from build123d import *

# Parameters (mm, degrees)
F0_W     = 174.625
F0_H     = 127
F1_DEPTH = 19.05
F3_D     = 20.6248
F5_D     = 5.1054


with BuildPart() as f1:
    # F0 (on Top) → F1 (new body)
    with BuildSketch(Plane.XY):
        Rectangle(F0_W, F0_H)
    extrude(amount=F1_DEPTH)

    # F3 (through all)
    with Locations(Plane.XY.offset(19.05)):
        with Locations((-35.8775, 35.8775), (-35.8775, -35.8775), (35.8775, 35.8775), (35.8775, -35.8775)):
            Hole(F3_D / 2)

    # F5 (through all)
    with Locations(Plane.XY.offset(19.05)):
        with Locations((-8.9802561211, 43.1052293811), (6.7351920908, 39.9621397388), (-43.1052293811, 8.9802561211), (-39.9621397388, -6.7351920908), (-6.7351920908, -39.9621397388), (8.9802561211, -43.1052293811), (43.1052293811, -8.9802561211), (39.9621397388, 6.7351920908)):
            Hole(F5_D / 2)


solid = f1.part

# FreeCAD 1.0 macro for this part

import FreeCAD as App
import Part
import Sketcher
from FreeCAD import Vector
Q = App.Units.Quantity

doc = App.newDocument("Part")
body = doc.addObject("PartDesign::Body", "Body")

sketch1 = doc.addObject("Sketcher::SketchObject", "Sketch")
body.addObject(sketch1)
sketch1.AttachmentSupport = (doc.XY_Plane, [""])
sketch1.MapMode = "FlatFace"
sketch1.addGeometry([
    Part.LineSegment(Vector(-87, 64, 0), Vector(-87, -64, 0)),
    Part.LineSegment(Vector(-87, -64, 0), Vector(87, -64, 0)),
    Part.LineSegment(Vector(87, -64, 0), Vector(87, 64, 0)),
    Part.LineSegment(Vector(87, 64, 0), Vector(-87, 64, 0)),
], False)
sketch1.addConstraint([
    Sketcher.Constraint("Coincident", 0, 2, 1, 1),
    Sketcher.Constraint("Coincident", 1, 2, 2, 1),
    Sketcher.Constraint("Coincident", 2, 2, 3, 1),
    Sketcher.Constraint("Coincident", 3, 2, 0, 1),
    Sketcher.Constraint("Vertical", 0),
    Sketcher.Constraint("Horizontal", 1),
    Sketcher.Constraint("Vertical", 2),
    Sketcher.Constraint("Horizontal", 3),
    Sketcher.Constraint("Symmetric", 0, 2, 2, 2, -1, 1),
    Sketcher.Constraint("DistanceY", 0, 2, 0, 1, Q("5 in")),
    Sketcher.Constraint("DistanceX", 1, 1, 1, 2, Q("6.875 in")),
])
pad1 = doc.addObject("PartDesign::Pad", "Pad")
body.addObject(pad1)
pad1.Profile = sketch1
pad1.Length = Q("0.75 in")

sketch2 = doc.addObject("Sketcher::SketchObject", "Sketch001")
body.addObject(sketch2)
sketch2.AttachmentSupport = (doc.XY_Plane, [""])
sketch2.MapMode = "FlatFace"
sketch2.AttachmentOffset = App.Placement(Vector(0, 0, 0.75 * 25.4), App.Rotation())
sketch2.addGeometry([
    Part.Circle(Vector(-36, 36, 0), Vector(0, 0, 1), 10),
    Part.Circle(Vector(-36, -36, 0), Vector(0, 0, 1), 10),
    Part.Circle(Vector(36, 36, 0), Vector(0, 0, 1), 10),
    Part.Circle(Vector(36, -36, 0), Vector(0, 0, 1), 10),
], False)
sketch2.addConstraint([
    Sketcher.Constraint("Equal", 0, 1),
    Sketcher.Constraint("Equal", 1, 2),
    Sketcher.Constraint("Equal", 2, 3),
    Sketcher.Constraint("Symmetric", 1, 3, 2, 3, -1, 1),
    Sketcher.Constraint("Symmetric", 0, 3, 3, 3, -1, 1),
    Sketcher.Constraint("Symmetric", 0, 3, 2, 3, -2),
    Sketcher.Constraint("Diameter", 0, Q("0.812 in")),
    Sketcher.Constraint("DistanceY", 1, 3, 0, 3, Q("2.825 in")),
    Sketcher.Constraint("DistanceX", 0, 3, 2, 3, Q("2.825 in")),
])
doc.recompute()
hole = doc.addObject("PartDesign::Hole", "Hole")
body.addObject(hole)
hole.Profile = sketch2
hole.ThreadType = "None"
hole.Diameter = Q("0.812 in")
hole.DepthType = "ThroughAll"

sketch3 = doc.addObject("Sketcher::SketchObject", "Sketch002")
body.addObject(sketch3)
sketch3.AttachmentSupport = (doc.XY_Plane, [""])
sketch3.MapMode = "FlatFace"
sketch3.AttachmentOffset = App.Placement(Vector(0, 0, 0.75 * 25.4), App.Rotation())
sketch3.addGeometry([
    Part.Circle(Vector(-9, 43.1, 0), Vector(0, 0, 1), 2.6),
    Part.Circle(Vector(6.7, 40, 0), Vector(0, 0, 1), 2.6),
    Part.Circle(Vector(-43.1, 9, 0), Vector(0, 0, 1), 2.6),
    Part.Circle(Vector(-40, -6.7, 0), Vector(0, 0, 1), 2.6),
    Part.Circle(Vector(-6.7, -40, 0), Vector(0, 0, 1), 2.6),
    Part.Circle(Vector(9, -43.1, 0), Vector(0, 0, 1), 2.6),
    Part.Circle(Vector(43.1, -9, 0), Vector(0, 0, 1), 2.6),
    Part.Circle(Vector(40, 6.7, 0), Vector(0, 0, 1), 2.6),
], False)
sketch3.addConstraint([
    Sketcher.Constraint("Equal", 0, 1),
    Sketcher.Constraint("Equal", 1, 2),
    Sketcher.Constraint("Equal", 2, 3),
    Sketcher.Constraint("Equal", 3, 4),
    Sketcher.Constraint("Equal", 4, 5),
    Sketcher.Constraint("Equal", 5, 6),
    Sketcher.Constraint("Equal", 6, 7),
    Sketcher.Constraint("Symmetric", 1, 3, 4, 3, -1, 1),
    Sketcher.Constraint("Symmetric", 0, 3, 5, 3, -1, 1),
    Sketcher.Constraint("Symmetric", 2, 3, 6, 3, -1, 1),
    Sketcher.Constraint("Symmetric", 3, 3, 7, 3, -1, 1),
    Sketcher.Constraint("Diameter", 0, Q("0.201 in")),
    Sketcher.Constraint("DistanceY", -1, 1, 0, 3, Q("43.105229 mm")),
    Sketcher.Constraint("DistanceY", -1, 1, 1, 3, Q("39.96214 mm")),
    Sketcher.Constraint("DistanceX", 2, 3, -1, 1, Q("43.105229 mm")),
    Sketcher.Constraint("DistanceX", 3, 3, -1, 1, Q("39.96214 mm")),
    Sketcher.Constraint("DistanceX", 0, 3, 1, 3, Q("15.715448 mm")),
    Sketcher.Constraint("DistanceX", 2, 3, 1, 3, Q("49.840421 mm")),
    Sketcher.Constraint("DistanceY", 3, 3, 2, 3, Q("15.715448 mm")),
    Sketcher.Constraint("DistanceY", 3, 3, 0, 3, Q("49.840421 mm")),
])
doc.recompute()
hole2 = doc.addObject("PartDesign::Hole", "Hole001")
body.addObject(hole2)
hole2.Profile = sketch3
hole2.ThreadType = "None"
hole2.Diameter = Q("0.201 in")
hole2.DepthType = "ThroughAll"

doc.recompute()
